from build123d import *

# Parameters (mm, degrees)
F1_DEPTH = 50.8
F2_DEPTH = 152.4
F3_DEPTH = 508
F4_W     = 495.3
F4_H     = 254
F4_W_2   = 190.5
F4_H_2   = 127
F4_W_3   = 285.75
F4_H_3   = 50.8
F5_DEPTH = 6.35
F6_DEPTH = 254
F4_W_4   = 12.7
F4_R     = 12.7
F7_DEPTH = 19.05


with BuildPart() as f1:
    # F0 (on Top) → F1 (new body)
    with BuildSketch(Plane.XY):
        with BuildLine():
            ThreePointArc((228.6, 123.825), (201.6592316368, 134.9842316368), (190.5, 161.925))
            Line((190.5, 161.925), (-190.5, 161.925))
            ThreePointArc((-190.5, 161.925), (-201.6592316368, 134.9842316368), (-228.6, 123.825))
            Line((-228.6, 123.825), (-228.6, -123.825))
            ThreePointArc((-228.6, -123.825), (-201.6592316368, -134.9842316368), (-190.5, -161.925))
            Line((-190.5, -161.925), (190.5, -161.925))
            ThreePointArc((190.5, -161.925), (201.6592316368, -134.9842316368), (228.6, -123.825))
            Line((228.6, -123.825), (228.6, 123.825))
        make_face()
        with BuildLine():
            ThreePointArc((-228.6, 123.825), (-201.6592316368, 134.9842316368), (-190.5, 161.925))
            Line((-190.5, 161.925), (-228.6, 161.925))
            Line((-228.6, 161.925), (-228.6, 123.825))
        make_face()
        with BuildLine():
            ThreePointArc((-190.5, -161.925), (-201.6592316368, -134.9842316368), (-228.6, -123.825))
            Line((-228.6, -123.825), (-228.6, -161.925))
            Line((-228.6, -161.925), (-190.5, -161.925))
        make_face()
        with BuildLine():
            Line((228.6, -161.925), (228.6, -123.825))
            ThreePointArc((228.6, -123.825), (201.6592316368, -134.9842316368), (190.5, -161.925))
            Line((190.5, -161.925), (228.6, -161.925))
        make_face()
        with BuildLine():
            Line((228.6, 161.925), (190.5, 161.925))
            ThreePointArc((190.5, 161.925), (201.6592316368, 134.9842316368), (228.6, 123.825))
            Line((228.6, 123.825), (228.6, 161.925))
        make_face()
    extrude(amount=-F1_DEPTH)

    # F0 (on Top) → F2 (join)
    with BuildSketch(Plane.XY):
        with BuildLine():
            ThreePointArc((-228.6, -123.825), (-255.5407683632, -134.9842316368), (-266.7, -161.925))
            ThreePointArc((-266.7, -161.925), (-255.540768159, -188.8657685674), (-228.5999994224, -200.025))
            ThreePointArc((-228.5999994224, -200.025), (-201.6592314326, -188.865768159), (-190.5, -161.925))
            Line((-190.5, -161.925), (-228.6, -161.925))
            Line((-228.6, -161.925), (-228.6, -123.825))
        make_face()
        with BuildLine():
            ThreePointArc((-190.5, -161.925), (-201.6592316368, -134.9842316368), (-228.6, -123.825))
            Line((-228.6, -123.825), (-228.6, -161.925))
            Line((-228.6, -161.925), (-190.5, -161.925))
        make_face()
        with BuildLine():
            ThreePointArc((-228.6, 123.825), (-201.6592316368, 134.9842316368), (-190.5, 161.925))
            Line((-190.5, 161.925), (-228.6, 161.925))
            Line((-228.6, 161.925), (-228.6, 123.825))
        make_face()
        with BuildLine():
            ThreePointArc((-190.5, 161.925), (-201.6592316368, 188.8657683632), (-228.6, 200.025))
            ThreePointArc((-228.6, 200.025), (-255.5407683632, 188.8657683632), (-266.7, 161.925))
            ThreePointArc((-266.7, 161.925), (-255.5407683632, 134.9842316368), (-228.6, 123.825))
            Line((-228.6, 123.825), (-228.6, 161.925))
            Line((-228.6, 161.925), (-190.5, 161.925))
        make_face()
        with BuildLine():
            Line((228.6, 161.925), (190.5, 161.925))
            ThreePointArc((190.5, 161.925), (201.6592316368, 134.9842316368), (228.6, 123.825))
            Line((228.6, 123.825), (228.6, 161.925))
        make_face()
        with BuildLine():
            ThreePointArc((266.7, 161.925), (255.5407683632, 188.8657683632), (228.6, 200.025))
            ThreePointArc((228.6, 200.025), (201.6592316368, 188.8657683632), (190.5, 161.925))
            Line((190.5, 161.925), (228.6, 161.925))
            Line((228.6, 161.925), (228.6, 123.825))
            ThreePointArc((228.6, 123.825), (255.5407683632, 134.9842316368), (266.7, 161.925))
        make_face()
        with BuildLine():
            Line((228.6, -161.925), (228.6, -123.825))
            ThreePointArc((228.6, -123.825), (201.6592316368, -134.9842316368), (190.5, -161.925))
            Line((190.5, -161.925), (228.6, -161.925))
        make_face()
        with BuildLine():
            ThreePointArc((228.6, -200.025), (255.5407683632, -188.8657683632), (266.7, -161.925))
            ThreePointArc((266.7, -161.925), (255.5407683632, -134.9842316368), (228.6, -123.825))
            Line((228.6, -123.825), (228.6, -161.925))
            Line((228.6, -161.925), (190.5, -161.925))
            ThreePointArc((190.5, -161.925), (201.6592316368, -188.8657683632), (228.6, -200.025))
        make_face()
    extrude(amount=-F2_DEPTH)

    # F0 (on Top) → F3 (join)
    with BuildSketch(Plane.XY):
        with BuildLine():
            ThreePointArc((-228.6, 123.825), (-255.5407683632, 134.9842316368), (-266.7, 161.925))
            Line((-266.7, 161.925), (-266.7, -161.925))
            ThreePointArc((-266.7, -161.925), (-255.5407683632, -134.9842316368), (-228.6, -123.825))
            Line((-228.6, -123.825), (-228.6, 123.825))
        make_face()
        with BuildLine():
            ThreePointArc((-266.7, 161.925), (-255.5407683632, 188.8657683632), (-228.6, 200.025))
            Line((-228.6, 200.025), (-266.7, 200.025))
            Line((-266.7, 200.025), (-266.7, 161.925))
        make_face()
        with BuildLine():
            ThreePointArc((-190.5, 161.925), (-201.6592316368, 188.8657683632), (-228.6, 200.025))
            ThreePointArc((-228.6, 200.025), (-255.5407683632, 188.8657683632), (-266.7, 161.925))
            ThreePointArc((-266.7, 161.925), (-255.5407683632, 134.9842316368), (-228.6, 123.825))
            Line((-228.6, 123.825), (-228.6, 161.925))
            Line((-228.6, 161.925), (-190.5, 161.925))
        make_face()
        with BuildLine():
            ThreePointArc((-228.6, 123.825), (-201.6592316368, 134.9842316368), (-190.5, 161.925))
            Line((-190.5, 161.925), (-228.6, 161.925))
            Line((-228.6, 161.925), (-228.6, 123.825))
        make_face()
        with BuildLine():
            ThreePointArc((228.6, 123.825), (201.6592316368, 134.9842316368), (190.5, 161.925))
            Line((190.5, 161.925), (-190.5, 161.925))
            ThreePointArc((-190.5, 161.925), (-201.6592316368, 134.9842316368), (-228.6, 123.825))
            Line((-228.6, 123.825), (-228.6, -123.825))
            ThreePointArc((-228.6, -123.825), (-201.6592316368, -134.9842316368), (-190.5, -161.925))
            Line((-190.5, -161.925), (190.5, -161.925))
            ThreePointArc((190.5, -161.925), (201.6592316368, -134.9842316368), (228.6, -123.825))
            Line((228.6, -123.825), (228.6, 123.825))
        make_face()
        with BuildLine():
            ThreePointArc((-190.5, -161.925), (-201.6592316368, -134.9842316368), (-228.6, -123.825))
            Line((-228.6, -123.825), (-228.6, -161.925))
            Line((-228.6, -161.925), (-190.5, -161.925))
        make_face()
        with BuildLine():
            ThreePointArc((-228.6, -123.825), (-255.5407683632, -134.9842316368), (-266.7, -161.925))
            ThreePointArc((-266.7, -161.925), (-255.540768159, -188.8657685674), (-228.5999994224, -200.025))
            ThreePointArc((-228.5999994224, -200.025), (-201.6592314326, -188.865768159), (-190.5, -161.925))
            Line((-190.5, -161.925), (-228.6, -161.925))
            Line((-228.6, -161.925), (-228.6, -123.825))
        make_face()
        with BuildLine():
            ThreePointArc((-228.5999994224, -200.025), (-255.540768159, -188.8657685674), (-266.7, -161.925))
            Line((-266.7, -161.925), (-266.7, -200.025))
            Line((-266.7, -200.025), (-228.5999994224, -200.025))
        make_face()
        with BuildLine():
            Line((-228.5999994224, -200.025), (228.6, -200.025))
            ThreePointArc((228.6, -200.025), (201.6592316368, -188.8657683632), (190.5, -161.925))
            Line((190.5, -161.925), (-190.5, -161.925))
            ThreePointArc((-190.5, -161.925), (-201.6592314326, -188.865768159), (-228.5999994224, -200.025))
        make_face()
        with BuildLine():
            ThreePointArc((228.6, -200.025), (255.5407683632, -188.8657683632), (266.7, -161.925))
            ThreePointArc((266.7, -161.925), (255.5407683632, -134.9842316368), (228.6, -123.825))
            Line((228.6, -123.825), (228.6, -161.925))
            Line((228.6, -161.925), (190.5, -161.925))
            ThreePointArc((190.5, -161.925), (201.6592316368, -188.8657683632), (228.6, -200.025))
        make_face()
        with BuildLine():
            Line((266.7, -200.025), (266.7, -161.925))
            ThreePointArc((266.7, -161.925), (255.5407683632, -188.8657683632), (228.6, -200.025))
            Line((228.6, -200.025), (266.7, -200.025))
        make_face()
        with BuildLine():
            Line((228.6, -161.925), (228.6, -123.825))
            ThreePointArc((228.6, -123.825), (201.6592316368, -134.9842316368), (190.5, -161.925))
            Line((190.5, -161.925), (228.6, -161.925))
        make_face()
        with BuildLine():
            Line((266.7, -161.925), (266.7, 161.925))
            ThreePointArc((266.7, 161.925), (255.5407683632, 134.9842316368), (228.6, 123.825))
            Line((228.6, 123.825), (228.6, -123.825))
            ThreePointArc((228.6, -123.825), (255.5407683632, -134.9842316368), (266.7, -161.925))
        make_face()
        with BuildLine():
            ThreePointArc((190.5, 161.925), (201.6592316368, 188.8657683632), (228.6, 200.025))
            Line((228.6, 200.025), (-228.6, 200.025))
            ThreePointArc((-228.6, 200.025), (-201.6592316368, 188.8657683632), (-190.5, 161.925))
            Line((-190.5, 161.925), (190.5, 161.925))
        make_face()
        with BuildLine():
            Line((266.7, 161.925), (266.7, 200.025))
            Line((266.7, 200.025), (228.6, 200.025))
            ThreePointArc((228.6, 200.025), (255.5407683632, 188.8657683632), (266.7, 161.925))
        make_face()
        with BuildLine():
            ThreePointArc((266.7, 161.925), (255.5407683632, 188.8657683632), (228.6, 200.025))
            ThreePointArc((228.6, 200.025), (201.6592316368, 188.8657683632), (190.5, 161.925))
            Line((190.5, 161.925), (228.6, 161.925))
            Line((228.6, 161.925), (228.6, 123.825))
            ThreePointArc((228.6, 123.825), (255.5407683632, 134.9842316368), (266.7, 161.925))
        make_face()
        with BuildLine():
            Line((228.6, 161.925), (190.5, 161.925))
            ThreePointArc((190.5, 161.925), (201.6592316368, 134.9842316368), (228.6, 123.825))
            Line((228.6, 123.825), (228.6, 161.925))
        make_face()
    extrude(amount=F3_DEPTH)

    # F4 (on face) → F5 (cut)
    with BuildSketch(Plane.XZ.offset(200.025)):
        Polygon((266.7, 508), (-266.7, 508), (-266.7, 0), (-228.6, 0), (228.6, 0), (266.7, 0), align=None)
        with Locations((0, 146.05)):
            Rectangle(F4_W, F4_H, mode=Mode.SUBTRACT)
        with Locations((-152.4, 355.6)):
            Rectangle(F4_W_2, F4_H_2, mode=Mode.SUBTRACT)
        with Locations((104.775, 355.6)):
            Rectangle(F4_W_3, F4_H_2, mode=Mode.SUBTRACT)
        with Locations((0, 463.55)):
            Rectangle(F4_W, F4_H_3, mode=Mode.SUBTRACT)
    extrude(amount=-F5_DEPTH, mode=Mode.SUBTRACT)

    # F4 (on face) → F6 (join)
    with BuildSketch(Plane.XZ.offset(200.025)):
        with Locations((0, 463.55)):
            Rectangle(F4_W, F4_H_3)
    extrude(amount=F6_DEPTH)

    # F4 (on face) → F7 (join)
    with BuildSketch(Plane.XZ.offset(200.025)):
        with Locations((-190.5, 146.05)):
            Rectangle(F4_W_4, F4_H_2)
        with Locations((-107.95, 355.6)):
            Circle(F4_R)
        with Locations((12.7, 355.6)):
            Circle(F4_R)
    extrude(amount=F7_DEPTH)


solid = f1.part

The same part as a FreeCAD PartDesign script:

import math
import FreeCAD as App
import Part
import Sketcher
from FreeCAD import Vector
Q = App.Units.Quantity

doc = App.newDocument("Part")
body = doc.addObject("PartDesign::Body", "Body")

sketch1 = body.newObject("Sketcher::SketchObject", "Sketch")
sketch1.AttachmentSupport = (doc.getObject("XY_Plane"), [""])
sketch1.MapMode = "FlatFace"
sketch1.addGeometry(Part.LineSegment(Vector(-229, 162, 0), Vector(-229, -162, 0)), False)
sketch1.addGeometry(Part.LineSegment(Vector(-229, -162, 0), Vector(229, -162, 0)), False)
sketch1.addGeometry(Part.LineSegment(Vector(229, -162, 0), Vector(229, 162, 0)), False)
sketch1.addGeometry(Part.LineSegment(Vector(229, 162, 0), Vector(-229, 162, 0)), False)
sketch1.addConstraint(Sketcher.Constraint("Coincident", 0, 2, 1, 1))
sketch1.addConstraint(Sketcher.Constraint("Coincident", 1, 2, 2, 1))
sketch1.addConstraint(Sketcher.Constraint("Coincident", 2, 2, 3, 1))
sketch1.addConstraint(Sketcher.Constraint("Coincident", 3, 2, 0, 1))
sketch1.addConstraint(Sketcher.Constraint("Vertical", 0))
sketch1.addConstraint(Sketcher.Constraint("Horizontal", 1))
sketch1.addConstraint(Sketcher.Constraint("Vertical", 2))
sketch1.addConstraint(Sketcher.Constraint("Horizontal", 3))
sketch1.addConstraint(Sketcher.Constraint("Symmetric", 0, 2, 2, 2, -1, 1))
sketch1.addConstraint(Sketcher.Constraint("DistanceX", 1, 1, 1, 2, Q("18 in")))
sketch1.addConstraint(Sketcher.Constraint("DistanceY", 0, 2, 0, 1, Q("12.75 in")))
pad1 = body.newObject("PartDesign::Pad", "Pad")
pad1.Profile = sketch1
pad1.Length = Q("2 in")
pad1.Reversed = True

sketch2 = body.newObject("Sketcher::SketchObject", "Sketch001")
sketch2.AttachmentSupport = (doc.getObject("XY_Plane"), [""])
sketch2.MapMode = "FlatFace"
sketch2.addGeometry(Part.ArcOfCircle(Part.Circle(Vector(-229, -162, 0), Vector(0, 0, 1), 38), math.radians(90), math.radians(180)), False)
sketch2.addGeometry(Part.ArcOfCircle(Part.Circle(Vector(-229, -162, 0), Vector(0, 0, 1), 38), math.radians(180), math.radians(270)), False)
sketch2.addGeometry(Part.ArcOfCircle(Part.Circle(Vector(-229, -162, 0), Vector(0, 0, 1), 38), math.radians(-90), math.radians(0)), False)
sketch2.addGeometry(Part.ArcOfCircle(Part.Circle(Vector(-229, -162, 0), Vector(0, 0, 1), 38), math.radians(0), math.radians(90)), False)
sketch2.addGeometry(Part.ArcOfCircle(Part.Circle(Vector(-229, 162, 0), Vector(0, 0, 1), 38), math.radians(-90), math.radians(0)), False)
sketch2.addGeometry(Part.ArcOfCircle(Part.Circle(Vector(-229, 162, 0), Vector(0, 0, 1), 38), math.radians(0), math.radians(90)), False)
sketch2.addGeometry(Part.ArcOfCircle(Part.Circle(Vector(-229, 162, 0), Vector(0, 0, 1), 38), math.radians(90), math.radians(180)), False)
sketch2.addGeometry(Part.ArcOfCircle(Part.Circle(Vector(-229, 162, 0), Vector(0, 0, 1), 38), math.radians(180), math.radians(270)), False)
sketch2.addGeometry(Part.ArcOfCircle(Part.Circle(Vector(229, 162, 0), Vector(0, 0, 1), 38), math.radians(180), math.radians(270)), False)
sketch2.addGeometry(Part.ArcOfCircle(Part.Circle(Vector(229, 162, 0), Vector(0, 0, 1), 38), math.radians(-90), math.radians(0)), False)
sketch2.addGeometry(Part.ArcOfCircle(Part.Circle(Vector(229, 162, 0), Vector(0, 0, 1), 38), math.radians(0), math.radians(90)), False)
sketch2.addGeometry(Part.ArcOfCircle(Part.Circle(Vector(229, 162, 0), Vector(0, 0, 1), 38), math.radians(90), math.radians(180)), False)
sketch2.addGeometry(Part.ArcOfCircle(Part.Circle(Vector(229, -162, 0), Vector(0, 0, 1), 38), math.radians(90), math.radians(180)), False)
sketch2.addGeometry(Part.ArcOfCircle(Part.Circle(Vector(229, -162, 0), Vector(0, 0, 1), 38), math.radians(180), math.radians(270)), False)
sketch2.addGeometry(Part.ArcOfCircle(Part.Circle(Vector(229, -162, 0), Vector(0, 0, 1), 38), math.radians(-90), math.radians(0)), False)
sketch2.addGeometry(Part.ArcOfCircle(Part.Circle(Vector(229, -162, 0), Vector(0, 0, 1), 38), math.radians(0), math.radians(90)), False)
sketch2.addConstraint(Sketcher.Constraint("Tangent", 0, 2, 1, 1))
sketch2.addConstraint(Sketcher.Constraint("Tangent", 1, 2, 2, 1))
sketch2.addConstraint(Sketcher.Constraint("Tangent", 2, 2, 3, 1))
sketch2.addConstraint(Sketcher.Constraint("Tangent", 3, 2, 0, 1))
sketch2.addConstraint(Sketcher.Constraint("Tangent", 4, 2, 5, 1))
sketch2.addConstraint(Sketcher.Constraint("Tangent", 5, 2, 6, 1))
sketch2.addConstraint(Sketcher.Constraint("Tangent", 6, 2, 7, 1))
sketch2.addConstraint(Sketcher.Constraint("Tangent", 7, 2, 4, 1))
sketch2.addConstraint(Sketcher.Constraint("Tangent", 8, 2, 9, 1))
sketch2.addConstraint(Sketcher.Constraint("Tangent", 9, 2, 10, 1))
sketch2.addConstraint(Sketcher.Constraint("Tangent", 10, 2, 11, 1))
sketch2.addConstraint(Sketcher.Constraint("Tangent", 11, 2, 8, 1))
sketch2.addConstraint(Sketcher.Constraint("Tangent", 12, 2, 13, 1))
sketch2.addConstraint(Sketcher.Constraint("Tangent", 13, 2, 14, 1))
sketch2.addConstraint(Sketcher.Constraint("Tangent", 14, 2, 15, 1))
sketch2.addConstraint(Sketcher.Constraint("Tangent", 15, 2, 12, 1))
sketch2.addConstraint(Sketcher.Constraint("Equal", 0, 1))
sketch2.addConstraint(Sketcher.Constraint("Equal", 3, 4))
sketch2.addConstraint(Sketcher.Constraint("Equal", 4, 5))
sketch2.addConstraint(Sketcher.Constraint("Equal", 7, 8))
sketch2.addConstraint(Sketcher.Constraint("Equal", 8, 9))
sketch2.addConstraint(Sketcher.Constraint("Equal", 11, 12))
sketch2.addConstraint(Sketcher.Constraint("Equal", 12, 13))
sketch2.addConstraint(Sketcher.Constraint("Symmetric", 0, 3, 8, 3, -1, 1))
sketch2.addConstraint(Sketcher.Constraint("Symmetric", 4, 3, 12, 3, -1, 1))
sketch2.addConstraint(Sketcher.Constraint("Symmetric", 4, 3, 8, 3, -2))
sketch2.addConstraint(Sketcher.Constraint("Horizontal", 15, 3, 0, 2))
sketch2.addConstraint(Sketcher.Constraint("Horizontal", 0, 2, 2, 2))
sketch2.addConstraint(Sketcher.Constraint("Horizontal", 11, 3, 4, 2))
sketch2.addConstraint(Sketcher.Constraint("Horizontal", 4, 2, 6, 2))
sketch2.addConstraint(Sketcher.Constraint("Horizontal", 6, 2, 9, 2))
sketch2.addConstraint(Sketcher.Constraint("Horizontal", 9, 2, 11, 2))
sketch2.addConstraint(Sketcher.Constraint("Horizontal", 2, 2, 12, 2))
sketch2.addConstraint(Sketcher.Constraint("Horizontal", 12, 2, 14, 2))
sketch2.addConstraint(Sketcher.Constraint("Vertical", 7, 3, 1, 2))
sketch2.addConstraint(Sketcher.Constraint("Vertical", 1, 2, 3, 2))
sketch2.addConstraint(Sketcher.Constraint("Vertical", 3, 2, 5, 2))
sketch2.addConstraint(Sketcher.Constraint("Vertical", 5, 2, 7, 2))
sketch2.addConstraint(Sketcher.Constraint("Vertical", 15, 3, 8, 2))
sketch2.addConstraint(Sketcher.Constraint("Vertical", 8, 2, 10, 2))
sketch2.addConstraint(Sketcher.Constraint("Vertical", 10, 2, 13, 2))
sketch2.addConstraint(Sketcher.Constraint("Vertical", 13, 2, 15, 2))
sketch2.addConstraint(Sketcher.Constraint("Radius", 0, Q("1.5 in")))
sketch2.addConstraint(Sketcher.Constraint("DistanceX", 0, 3, -1, 1, Q("9 in")))
sketch2.addConstraint(Sketcher.Constraint("DistanceY", 0, 3, 4, 3, Q("12.75 in")))
pad2 = body.newObject("PartDesign::Pad", "Pad001")
pad2.Profile = sketch2
pad2.Length = Q("6 in")
pad2.Reversed = True

sketch3 = body.newObject("Sketcher::SketchObject", "Sketch002")
sketch3.AttachmentSupport = (doc.getObject("XY_Plane"), [""])
sketch3.MapMode = "FlatFace"
sketch3.addGeometry(Part.LineSegment(Vector(-267, 200, 0), Vector(-267, -200, 0)), False)
sketch3.addGeometry(Part.LineSegment(Vector(-267, -200, 0), Vector(267, -200, 0)), False)
sketch3.addGeometry(Part.LineSegment(Vector(267, -200, 0), Vector(267, 200, 0)), False)
sketch3.addGeometry(Part.LineSegment(Vector(267, 200, 0), Vector(-267, 200, 0)), False)
sketch3.addConstraint(Sketcher.Constraint("Coincident", 0, 2, 1, 1))
sketch3.addConstraint(Sketcher.Constraint("Coincident", 1, 2, 2, 1))
sketch3.addConstraint(Sketcher.Constraint("Coincident", 2, 2, 3, 1))
sketch3.addConstraint(Sketcher.Constraint("Coincident", 3, 2, 0, 1))
sketch3.addConstraint(Sketcher.Constraint("Vertical", 0))
sketch3.addConstraint(Sketcher.Constraint("Horizontal", 1))
sketch3.addConstraint(Sketcher.Constraint("Vertical", 2))
sketch3.addConstraint(Sketcher.Constraint("Horizontal", 3))
sketch3.addConstraint(Sketcher.Constraint("Symmetric", 0, 2, 2, 2, -1, 1))
sketch3.addConstraint(Sketcher.Constraint("DistanceX", 1, 1, 1, 2, Q("21 in")))
sketch3.addConstraint(Sketcher.Constraint("DistanceY", 0, 2, 0, 1, Q("15.75 in")))
pad3 = body.newObject("PartDesign::Pad", "Pad002")
pad3.Profile = sketch3
pad3.Length = Q("20 in")

sketch4 = body.newObject("Sketcher::SketchObject", "Sketch003")
sketch4.AttachmentSupport = (doc.getObject("XZ_Plane"), [""])
sketch4.MapMode = "FlatFace"
sketch4.AttachmentOffset = App.Placement(Vector(0, 0, 7.875 * 25.4), App.Rotation())
sketch4.addGeometry(Part.LineSegment(Vector(267, 508, 0), Vector(-267, 508, 0)), False)
sketch4.addGeometry(Part.LineSegment(Vector(-267, 508, 0), Vector(-267, 0, 0)), False)
sketch4.addGeometry(Part.LineSegment(Vector(-267, 0, 0), Vector(267, 0, 0)), False)
sketch4.addGeometry(Part.LineSegment(Vector(267, 0, 0), Vector(267, 508, 0)), False)
sketch4.addGeometry(Part.LineSegment(Vector(248, 19, 0), Vector(-248, 19, 0)), False)
sketch4.addGeometry(Part.LineSegment(Vector(-248, 19, 0), Vector(-248, 273, 0)), False)
sketch4.addGeometry(Part.LineSegment(Vector(-248, 273, 0), Vector(248, 273, 0)), False)
sketch4.addGeometry(Part.LineSegment(Vector(248, 273, 0), Vector(248, 19, 0)), False)
sketch4.addGeometry(Part.LineSegment(Vector(-57, 292, 0), Vector(-248, 292, 0)), False)
sketch4.addGeometry(Part.LineSegment(Vector(-248, 292, 0), Vector(-248, 419, 0)), False)
sketch4.addGeometry(Part.LineSegment(Vector(-248, 419, 0), Vector(-57, 419, 0)), False)
sketch4.addGeometry(Part.LineSegment(Vector(-57, 419, 0), Vector(-57, 292, 0)), False)
sketch4.addGeometry(Part.LineSegment(Vector(248, 292, 0), Vector(-38, 292, 0)), False)
sketch4.addGeometry(Part.LineSegment(Vector(-38, 292, 0), Vector(-38, 419, 0)), False)
sketch4.addGeometry(Part.LineSegment(Vector(-38, 419, 0), Vector(248, 419, 0)), False)
sketch4.addGeometry(Part.LineSegment(Vector(248, 419, 0), Vector(248, 292, 0)), False)
sketch4.addGeometry(Part.LineSegment(Vector(248, 438, 0), Vector(-248, 438, 0)), False)
sketch4.addGeometry(Part.LineSegment(Vector(-248, 438, 0), Vector(-248, 489, 0)), False)
sketch4.addGeometry(Part.LineSegment(Vector(-248, 489, 0), Vector(248, 489, 0)), False)
sketch4.addGeometry(Part.LineSegment(Vector(248, 489, 0), Vector(248, 438, 0)), False)
sketch4.addConstraint(Sketcher.Constraint("Coincident", 0, 2, 1, 1))
sketch4.addConstraint(Sketcher.Constraint("Coincident", 1, 2, 2, 1))
sketch4.addConstraint(Sketcher.Constraint("Coincident", 2, 2, 3, 1))
sketch4.addConstraint(Sketcher.Constraint("Coincident", 3, 2, 0, 1))
sketch4.addConstraint(Sketcher.Constraint("Coincident", 4, 2, 5, 1))
sketch4.addConstraint(Sketcher.Constraint("Coincident", 5, 2, 6, 1))
sketch4.addConstraint(Sketcher.Constraint("Coincident", 6, 2, 7, 1))
sketch4.addConstraint(Sketcher.Constraint("Coincident", 7, 2, 4, 1))
sketch4.addConstraint(Sketcher.Constraint("Coincident", 8, 2, 9, 1))
sketch4.addConstraint(Sketcher.Constraint("Coincident", 9, 2, 10, 1))
sketch4.addConstraint(Sketcher.Constraint("Coincident", 10, 2, 11, 1))
sketch4.addConstraint(Sketcher.Constraint("Coincident", 11, 2, 8, 1))
sketch4.addConstraint(Sketcher.Constraint("Coincident", 12, 2, 13, 1))
sketch4.addConstraint(Sketcher.Constraint("Coincident", 13, 2, 14, 1))
sketch4.addConstraint(Sketcher.Constraint("Coincident", 14, 2, 15, 1))
sketch4.addConstraint(Sketcher.Constraint("Coincident", 15, 2, 12, 1))
sketch4.addConstraint(Sketcher.Constraint("Coincident", 16, 2, 17, 1))
sketch4.addConstraint(Sketcher.Constraint("Coincident", 17, 2, 18, 1))
sketch4.addConstraint(Sketcher.Constraint("Coincident", 18, 2, 19, 1))
sketch4.addConstraint(Sketcher.Constraint("Coincident", 19, 2, 16, 1))
sketch4.addConstraint(Sketcher.Constraint("Horizontal", 0))
sketch4.addConstraint(Sketcher.Constraint("Vertical", 1))
sketch4.addConstraint(Sketcher.Constraint("Horizontal", 2))
sketch4.addConstraint(Sketcher.Constraint("Vertical", 3))
sketch4.addConstraint(Sketcher.Constraint("Horizontal", 4))
sketch4.addConstraint(Sketcher.Constraint("Vertical", 5))
sketch4.addConstraint(Sketcher.Constraint("Horizontal", 6))
sketch4.addConstraint(Sketcher.Constraint("Vertical", 7))
sketch4.addConstraint(Sketcher.Constraint("Horizontal", 8))
sketch4.addConstraint(Sketcher.Constraint("Vertical", 9))
sketch4.addConstraint(Sketcher.Constraint("Horizontal", 10))
sketch4.addConstraint(Sketcher.Constraint("Vertical", 11))
sketch4.addConstraint(Sketcher.Constraint("Horizontal", 12))
sketch4.addConstraint(Sketcher.Constraint("Vertical", 13))
sketch4.addConstraint(Sketcher.Constraint("Horizontal", 14))
sketch4.addConstraint(Sketcher.Constraint("Vertical", 15))
sketch4.addConstraint(Sketcher.Constraint("Horizontal", 16))
sketch4.addConstraint(Sketcher.Constraint("Vertical", 17))
sketch4.addConstraint(Sketcher.Constraint("Horizontal", 18))
sketch4.addConstraint(Sketcher.Constraint("Vertical", 19))
sketch4.addConstraint(Sketcher.Constraint("Symmetric", 1, 2, 2, 2, -1, 1))
sketch4.addConstraint(Sketcher.Constraint("Symmetric", 9, 2, 14, 2, -2))
sketch4.addConstraint(Sketcher.Constraint("Horizontal", 11, 2, 12, 2))
sketch4.addConstraint(Sketcher.Constraint("Vertical", 5, 2, 8, 2))
sketch4.addConstraint(Sketcher.Constraint("Vertical", 7, 2, 14, 2))
sketch4.addConstraint(Sketcher.Constraint("Vertical", 9, 2, 16, 2))
sketch4.addConstraint(Sketcher.Constraint("Vertical", 15, 2, 18, 2))
sketch4.addConstraint(Sketcher.Constraint("DistanceX", 0, 2, 0, 1, Q("21 in")))
sketch4.addConstraint(Sketcher.Constraint("DistanceY", 1, 2, 1, 1, Q("20 in")))
sketch4.addConstraint(Sketcher.Constraint("DistanceY", 5, 1, 5, 2, Q("10 in")))
sketch4.addConstraint(Sketcher.Constraint("DistanceY", 9, 1, 9, 2, Q("5 in")))
sketch4.addConstraint(Sketcher.Constraint("DistanceY", 17, 1, 17, 2, Q("2 in")))
sketch4.addConstraint(Sketcher.Constraint("DistanceX", 4, 2, 4, 1, Q("19.5 in")))
sketch4.addConstraint(Sketcher.Constraint("DistanceX", 8, 2, 8, 1, Q("7.5 in")))
sketch4.addConstraint(Sketcher.Constraint("DistanceX", 12, 2, 12, 1, Q("11.25 in")))
sketch4.addConstraint(Sketcher.Constraint("DistanceY", -1, 1, 8, 2, Q("11.5 in")))
sketch4.addConstraint(Sketcher.Constraint("DistanceY", 5, 2, 16, 2, Q("6.5 in")))
sketch4.addConstraint(Sketcher.Constraint("DistanceY", -1, 1, 4, 2, Q("0.75 in")))
pocket1 = body.newObject("PartDesign::Pocket", "Pocket")
pocket1.Profile = sketch4
pocket1.Length = Q("0.25 in")

sketch5 = body.newObject("Sketcher::SketchObject", "Sketch004")
sketch5.AttachmentSupport = (doc.getObject("XZ_Plane"), [""])
sketch5.MapMode = "FlatFace"
sketch5.AttachmentOffset = App.Placement(Vector(0, 0, 7.875 * 25.4), App.Rotation())
sketch5.addGeometry(Part.LineSegment(Vector(-248, 489, 0), Vector(-248, 438, 0)), False)
sketch5.addGeometry(Part.LineSegment(Vector(-248, 438, 0), Vector(248, 438, 0)), False)
sketch5.addGeometry(Part.LineSegment(Vector(248, 438, 0), Vector(248, 489, 0)), False)
sketch5.addGeometry(Part.LineSegment(Vector(248, 489, 0), Vector(-248, 489, 0)), False)
sketch5.addConstraint(Sketcher.Constraint("Coincident", 0, 2, 1, 1))
sketch5.addConstraint(Sketcher.Constraint("Coincident", 1, 2, 2, 1))
sketch5.addConstraint(Sketcher.Constraint("Coincident", 2, 2, 3, 1))
sketch5.addConstraint(Sketcher.Constraint("Coincident", 3, 2, 0, 1))
sketch5.addConstraint(Sketcher.Constraint("Vertical", 0))
sketch5.addConstraint(Sketcher.Constraint("Horizontal", 1))
sketch5.addConstraint(Sketcher.Constraint("Vertical", 2))
sketch5.addConstraint(Sketcher.Constraint("Horizontal", 3))
sketch5.addConstraint(Sketcher.Constraint("DistanceY", 0, 2, 0, 1, Q("2 in")))
sketch5.addConstraint(Sketcher.Constraint("DistanceX", 1, 1, 1, 2, Q("19.5 in")))
sketch5.addConstraint(Sketcher.Constraint("DistanceX", 0, 2, -1, 1, Q("9.75 in")))
sketch5.addConstraint(Sketcher.Constraint("DistanceY", -1, 1, 0, 2, Q("17.25 in")))
pad4 = body.newObject("PartDesign::Pad", "Pad003")
pad4.Profile = sketch5
pad4.Length = Q("10 in")

sketch6 = body.newObject("Sketcher::SketchObject", "Sketch005")
sketch6.AttachmentSupport = (doc.getObject("XZ_Plane"), [""])
sketch6.MapMode = "FlatFace"
sketch6.AttachmentOffset = App.Placement(Vector(0, 0, 7.875 * 25.4), App.Rotation())
sketch6.addGeometry(Part.LineSegment(Vector(-197, 210, 0), Vector(-197, 83, 0)), False)
sketch6.addGeometry(Part.LineSegment(Vector(-197, 83, 0), Vector(-184, 83, 0)), False)
sketch6.addGeometry(Part.LineSegment(Vector(-184, 83, 0), Vector(-184, 210, 0)), False)
sketch6.addGeometry(Part.LineSegment(Vector(-184, 210, 0), Vector(-197, 210, 0)), False)
sketch6.addGeometry(Part.Circle(Vector(-108, 356, 0), Vector(0, 0, 1), 13), False)
sketch6.addGeometry(Part.Circle(Vector(13, 356, 0), Vector(0, 0, 1), 13), False)
sketch6.addConstraint(Sketcher.Constraint("Coincident", 0, 2, 1, 1))
sketch6.addConstraint(Sketcher.Constraint("Coincident", 1, 2, 2, 1))
sketch6.addConstraint(Sketcher.Constraint("Coincident", 2, 2, 3, 1))
sketch6.addConstraint(Sketcher.Constraint("Coincident", 3, 2, 0, 1))
sketch6.addConstraint(Sketcher.Constraint("Vertical", 0))
sketch6.addConstraint(Sketcher.Constraint("Horizontal", 1))
sketch6.addConstraint(Sketcher.Constraint("Vertical", 2))
sketch6.addConstraint(Sketcher.Constraint("Horizontal", 3))
sketch6.addConstraint(Sketcher.Constraint("Equal", 4, 5))
sketch6.addConstraint(Sketcher.Constraint("Horizontal", 4, 3, 5, 3))
sketch6.addConstraint(Sketcher.Constraint("Diameter", 4, Q("1 in")))
sketch6.addConstraint(Sketcher.Constraint("DistanceY", 0, 2, 0, 1, Q("5 in")))
sketch6.addConstraint(Sketcher.Constraint("DistanceX", 1, 1, 1, 2, Q("0.5 in")))
sketch6.addConstraint(Sketcher.Constraint("DistanceY", -1, 1, 4, 3, Q("14 in")))
sketch6.addConstraint(Sketcher.Constraint("DistanceX", 1, 2, 4, 3, Q("3 in")))
sketch6.addConstraint(Sketcher.Constraint("DistanceX", -1, 1, 5, 3, Q("0.5 in")))
sketch6.addConstraint(Sketcher.Constraint("DistanceX", 4, 3, -1, 1, Q("4.25 in")))
sketch6.addConstraint(Sketcher.Constraint("DistanceY", -1, 1, 0, 2, Q("3.25 in")))
pad5 = body.newObject("PartDesign::Pad", "Pad004")
pad5.Profile = sketch6
pad5.Length = Q("0.75 in")

doc.recompute()
